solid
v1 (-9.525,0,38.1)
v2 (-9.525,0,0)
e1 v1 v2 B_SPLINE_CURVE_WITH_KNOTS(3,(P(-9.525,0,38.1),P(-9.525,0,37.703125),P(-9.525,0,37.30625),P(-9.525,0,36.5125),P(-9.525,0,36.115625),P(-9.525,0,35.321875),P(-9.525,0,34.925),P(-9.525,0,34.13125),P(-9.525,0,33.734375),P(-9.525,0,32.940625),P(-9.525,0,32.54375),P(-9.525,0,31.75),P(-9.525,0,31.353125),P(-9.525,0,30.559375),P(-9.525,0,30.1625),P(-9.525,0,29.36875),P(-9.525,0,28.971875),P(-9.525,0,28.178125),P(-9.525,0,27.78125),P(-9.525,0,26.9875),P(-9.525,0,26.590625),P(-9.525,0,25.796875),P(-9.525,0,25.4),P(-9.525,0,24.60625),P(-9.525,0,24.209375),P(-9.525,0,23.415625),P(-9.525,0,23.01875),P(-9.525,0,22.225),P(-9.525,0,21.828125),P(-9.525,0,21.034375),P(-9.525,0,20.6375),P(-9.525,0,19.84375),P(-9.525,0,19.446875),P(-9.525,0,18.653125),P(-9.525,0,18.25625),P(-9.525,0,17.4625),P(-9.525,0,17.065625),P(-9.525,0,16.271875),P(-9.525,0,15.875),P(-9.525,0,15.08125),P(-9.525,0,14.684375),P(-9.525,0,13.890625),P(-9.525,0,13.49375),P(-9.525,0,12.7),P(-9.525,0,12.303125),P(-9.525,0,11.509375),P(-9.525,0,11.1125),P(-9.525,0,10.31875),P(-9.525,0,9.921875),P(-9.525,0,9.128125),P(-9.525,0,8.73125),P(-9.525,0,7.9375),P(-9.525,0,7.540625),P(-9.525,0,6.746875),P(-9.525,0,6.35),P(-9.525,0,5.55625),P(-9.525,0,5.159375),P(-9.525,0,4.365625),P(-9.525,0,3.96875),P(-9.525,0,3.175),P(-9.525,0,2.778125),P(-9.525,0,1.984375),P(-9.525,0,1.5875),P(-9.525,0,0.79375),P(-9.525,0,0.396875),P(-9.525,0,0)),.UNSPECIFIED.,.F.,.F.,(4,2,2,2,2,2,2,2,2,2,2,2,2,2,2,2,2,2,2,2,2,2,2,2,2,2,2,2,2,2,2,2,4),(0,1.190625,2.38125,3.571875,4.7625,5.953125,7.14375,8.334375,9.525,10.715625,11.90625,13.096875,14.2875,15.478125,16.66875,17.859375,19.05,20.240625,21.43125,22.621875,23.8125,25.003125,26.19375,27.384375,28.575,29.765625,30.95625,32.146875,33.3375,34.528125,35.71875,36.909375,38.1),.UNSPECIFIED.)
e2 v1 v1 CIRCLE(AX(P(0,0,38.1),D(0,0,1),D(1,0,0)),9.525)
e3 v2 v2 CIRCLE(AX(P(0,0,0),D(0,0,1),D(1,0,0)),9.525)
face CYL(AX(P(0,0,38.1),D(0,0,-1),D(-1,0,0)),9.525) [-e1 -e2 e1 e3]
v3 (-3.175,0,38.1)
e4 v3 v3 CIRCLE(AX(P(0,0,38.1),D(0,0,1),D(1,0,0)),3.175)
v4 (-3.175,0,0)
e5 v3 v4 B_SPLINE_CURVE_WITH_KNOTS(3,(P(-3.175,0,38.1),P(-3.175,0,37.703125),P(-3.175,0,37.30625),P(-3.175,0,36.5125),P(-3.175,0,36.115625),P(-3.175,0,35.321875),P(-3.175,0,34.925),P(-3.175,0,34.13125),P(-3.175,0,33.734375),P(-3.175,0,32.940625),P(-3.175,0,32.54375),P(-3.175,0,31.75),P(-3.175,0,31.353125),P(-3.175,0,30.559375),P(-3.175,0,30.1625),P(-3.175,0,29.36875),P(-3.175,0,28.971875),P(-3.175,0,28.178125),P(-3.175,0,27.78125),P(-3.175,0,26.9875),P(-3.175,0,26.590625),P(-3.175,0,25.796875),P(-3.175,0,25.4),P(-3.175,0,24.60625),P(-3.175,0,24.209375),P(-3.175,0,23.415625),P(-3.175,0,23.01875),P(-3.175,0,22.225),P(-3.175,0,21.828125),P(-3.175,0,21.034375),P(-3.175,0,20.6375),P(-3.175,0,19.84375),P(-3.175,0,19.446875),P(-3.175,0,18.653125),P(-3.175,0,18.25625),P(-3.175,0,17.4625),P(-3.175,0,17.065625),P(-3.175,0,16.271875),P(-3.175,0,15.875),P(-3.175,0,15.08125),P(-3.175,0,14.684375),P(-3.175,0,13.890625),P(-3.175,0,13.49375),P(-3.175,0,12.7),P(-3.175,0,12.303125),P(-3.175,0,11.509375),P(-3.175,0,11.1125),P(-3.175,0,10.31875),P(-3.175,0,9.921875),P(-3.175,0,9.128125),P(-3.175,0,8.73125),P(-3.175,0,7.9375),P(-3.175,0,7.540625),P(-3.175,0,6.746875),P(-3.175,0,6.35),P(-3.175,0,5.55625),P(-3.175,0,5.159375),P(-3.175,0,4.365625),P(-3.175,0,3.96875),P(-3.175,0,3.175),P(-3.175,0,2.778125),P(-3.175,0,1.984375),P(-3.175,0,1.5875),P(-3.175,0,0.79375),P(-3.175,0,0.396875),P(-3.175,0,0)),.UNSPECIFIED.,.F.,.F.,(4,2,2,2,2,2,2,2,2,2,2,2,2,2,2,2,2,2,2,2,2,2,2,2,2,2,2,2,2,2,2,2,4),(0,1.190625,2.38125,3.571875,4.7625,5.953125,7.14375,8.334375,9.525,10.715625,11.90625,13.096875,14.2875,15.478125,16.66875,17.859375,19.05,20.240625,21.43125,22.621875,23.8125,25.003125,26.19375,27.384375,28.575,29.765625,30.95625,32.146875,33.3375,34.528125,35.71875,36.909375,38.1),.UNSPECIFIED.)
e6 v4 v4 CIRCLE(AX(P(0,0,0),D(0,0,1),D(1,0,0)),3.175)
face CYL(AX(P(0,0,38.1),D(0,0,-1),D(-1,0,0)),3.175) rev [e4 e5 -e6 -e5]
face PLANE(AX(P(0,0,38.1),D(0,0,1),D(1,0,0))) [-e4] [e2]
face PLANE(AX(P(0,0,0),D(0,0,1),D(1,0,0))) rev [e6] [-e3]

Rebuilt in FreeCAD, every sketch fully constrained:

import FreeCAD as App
import Part
import Sketcher

V = App.Vector
Q = App.Units.Quantity

doc = App.newDocument("Part")
body = doc.addObject("PartDesign::Body", "Body")

sketch1 = doc.addObject("Sketcher::SketchObject", "Sketch")
body.addObject(sketch1)
sketch1.AttachmentSupport = (doc.XY_Plane, [""])
sketch1.MapMode = "FlatFace"
sketch1.addGeometry([
    Part.Circle(V(0, 0, 0), V(0, 0, 1), 9.525),
    Part.Circle(V(0, 0, 0), V(0, 0, 1), 3.175),
], False)
sketch1.addConstraint([
    Sketcher.Constraint("Coincident", 0, 3, -1, 1),
    Sketcher.Constraint("Coincident", 1, 3, -1, 1),
    Sketcher.Constraint("Diameter", 0, Q("0.75 in")),
    Sketcher.Constraint("Diameter", 1, Q("0.25 in")),
])
pad1 = doc.addObject("PartDesign::Pad", "Pad")
body.addObject(pad1)
pad1.Profile = sketch1
pad1.Length = Q("1.5 in")

doc.recompute()
